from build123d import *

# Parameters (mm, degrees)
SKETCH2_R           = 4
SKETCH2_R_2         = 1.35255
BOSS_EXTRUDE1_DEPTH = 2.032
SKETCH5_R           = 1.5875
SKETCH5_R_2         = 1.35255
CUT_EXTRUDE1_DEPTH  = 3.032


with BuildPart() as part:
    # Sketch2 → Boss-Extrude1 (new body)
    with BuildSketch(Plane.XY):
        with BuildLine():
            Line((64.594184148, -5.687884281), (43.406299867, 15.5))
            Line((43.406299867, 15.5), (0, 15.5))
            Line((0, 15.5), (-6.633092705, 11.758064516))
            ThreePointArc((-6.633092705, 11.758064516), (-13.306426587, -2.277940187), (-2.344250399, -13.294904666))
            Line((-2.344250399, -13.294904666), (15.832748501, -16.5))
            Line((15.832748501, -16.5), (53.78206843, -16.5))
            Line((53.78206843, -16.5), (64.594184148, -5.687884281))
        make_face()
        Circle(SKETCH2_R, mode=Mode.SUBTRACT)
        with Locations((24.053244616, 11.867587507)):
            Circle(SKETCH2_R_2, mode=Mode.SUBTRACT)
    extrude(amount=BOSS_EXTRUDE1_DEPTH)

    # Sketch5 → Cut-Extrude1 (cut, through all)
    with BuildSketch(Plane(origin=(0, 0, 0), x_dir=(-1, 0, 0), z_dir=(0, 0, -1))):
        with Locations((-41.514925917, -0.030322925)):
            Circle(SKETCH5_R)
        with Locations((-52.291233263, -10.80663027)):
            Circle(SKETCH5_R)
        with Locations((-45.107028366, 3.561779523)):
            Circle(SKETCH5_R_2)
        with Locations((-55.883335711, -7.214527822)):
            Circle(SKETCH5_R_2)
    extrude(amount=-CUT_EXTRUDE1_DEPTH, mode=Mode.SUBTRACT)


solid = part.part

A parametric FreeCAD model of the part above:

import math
import FreeCAD as App
import Part
import Sketcher
from FreeCAD import Vector
Q = App.Units.Quantity

doc = App.newDocument("Part")
params = doc.addObject("Spreadsheet::Sheet", "Params")
for row, (alias, value) in enumerate([
    ("sketch1_diameter", "8 mm"),
    ("sketch1_radius", "13.5 mm"),
    ("pad1_length", "2.032 mm"),
], start=1):
    params.set(f"A{row}", alias)
    params.set(f"B{row}", "=" + value)
    params.setAlias(f"B{row}", alias)

body = doc.addObject("PartDesign::Body", "Body")

sketch1 = doc.addObject("Sketcher::SketchObject", "Sketch")
body.addObject(sketch1)
sketch1.AttachmentSupport = (doc.XY_Plane, [""])
sketch1.MapMode = "FlatFace"
sketch1.addGeometry([
    Part.LineSegment(Vector(64.6, -5.7, 0), Vector(43.4, 15.5, 0)),
    Part.LineSegment(Vector(43.4, 15.5, 0), Vector(0, 15.5, 0)),
    Part.LineSegment(Vector(0, 15.5, 0), Vector(-6.6, 11.8, 0)),
    Part.ArcOfCircle(Part.Circle(Vector(0, 0, 0), Vector(0, 0, 1), 13.5), math.radians(119), math.radians(260)),
    Part.LineSegment(Vector(-2.3, -13.3, 0), Vector(15.8, -16.5, 0)),
    Part.LineSegment(Vector(15.8, -16.5, 0), Vector(53.8, -16.5, 0)),
    Part.LineSegment(Vector(53.8, -16.5, 0), Vector(64.6, -5.7, 0)),
    Part.Circle(Vector(0, 0, 0), Vector(0, 0, 1), 4),
    Part.Circle(Vector(24.1, 11.9, 0), Vector(0, 0, 1), 1.4),
], False)
sketch1.addConstraint([
    Sketcher.Constraint("Coincident", 0, 2, 1, 1),
    Sketcher.Constraint("Coincident", 1, 2, 2, 1),
    Sketcher.Constraint("Tangent", 2, 2, 3, 1),
    Sketcher.Constraint("Tangent", 3, 2, 4, 1),
    Sketcher.Constraint("Coincident", 4, 2, 5, 1),
    Sketcher.Constraint("Coincident", 5, 2, 6, 1),
    Sketcher.Constraint("Coincident", 6, 2, 0, 1),
    Sketcher.Constraint("Horizontal", 1),
    Sketcher.Constraint("Horizontal", 5),
    Sketcher.Constraint("Coincident", 3, 3, -1, 1),
    Sketcher.Constraint("Coincident", 7, 3, -1, 1),
    Sketcher.Constraint("PointOnObject", 1, 2, -2),
    Sketcher.Constraint("Perpendicular", 0, 6),
    Sketcher.Constraint("Diameter", 7, Q("8 mm")),
    Sketcher.Constraint("Radius", 3, Q("13.5 mm")),
    Sketcher.Constraint("Angle", 0, Q("135 deg")),
    Sketcher.Constraint("Angle", 4, Q("-10 deg")),
    Sketcher.Constraint("DistanceY", 4, 2, 1, 2, Q("32 mm")),
    Sketcher.Constraint("Diameter", 8, Q("2.7051 mm")),
    Sketcher.Constraint("DistanceY", -1, 1, 0, 2, Q("15.5 mm")),
    Sketcher.Constraint("DistanceX", 1, 2, 1, 1, Q("43.4063 mm")),
    Sketcher.Constraint("DistanceX", 5, 1, 5, 2, Q("37.94932 mm")),
    Sketcher.Constraint("DistanceX", 8, 3, 6, 2, Q("40.54094 mm")),
    Sketcher.Constraint("DistanceY", 6, 2, 8, 3, Q("17.555472 mm")),
])
sketch1.setExpression("Constraints[13]", "Params.sketch1_diameter")
sketch1.setExpression("Constraints[14]", "Params.sketch1_radius")
pad1 = doc.addObject("PartDesign::Pad", "Pad")
body.addObject(pad1)
pad1.Profile = sketch1
pad1.setExpression("Length", "Params.pad1_length")

sketch2 = doc.addObject("Sketcher::SketchObject", "Sketch001")
body.addObject(sketch2)
sketch2.AttachmentSupport = (doc.XY_Plane, [""])
sketch2.MapMode = "FlatFace"
sketch2.addGeometry([
    Part.Circle(Vector(41.5, 0, 0), Vector(0, 0, 1), 1.6),
    Part.Circle(Vector(52.3, -10.8, 0), Vector(0, 0, 1), 1.6),
    Part.Circle(Vector(45.1, 3.6, 0), Vector(0, 0, 1), 1.4),
    Part.Circle(Vector(55.9, -7.2, 0), Vector(0, 0, 1), 1.4),
], False)
sketch2.addConstraint([
    Sketcher.Constraint("Equal", 0, 1),
    Sketcher.Constraint("Equal", 2, 3),
    Sketcher.Constraint("Diameter", 0, Q("3.175 mm")),
    Sketcher.Constraint("Diameter", 2, Q("2.7051 mm")),
    Sketcher.Constraint("DistanceY", 1, 3, -1, 1, Q("10.80663 mm")),
    Sketcher.Constraint("DistanceX", -1, 1, 2, 3, Q("45.107028 mm")),
    Sketcher.Constraint("DistanceY", -1, 1, 2, 3, Q("3.56178 mm")),
    Sketcher.Constraint("DistanceX", 0, 3, 3, 3, Q("14.36841 mm")),
    Sketcher.Constraint("DistanceX", -1, 1, 0, 3, Q("41.514926 mm")),
    Sketcher.Constraint("DistanceY", 0, 3, -1, 1, Q("0.030323 mm")),
    Sketcher.Constraint("DistanceX", -1, 1, 1, 3, Q("52.291233 mm")),
    Sketcher.Constraint("DistanceY", 3, 3, -1, 1, Q("7.214528 mm")),
])
pocket1 = doc.addObject("PartDesign::Pocket", "Pocket")
body.addObject(pocket1)
pocket1.Profile = sketch2
pocket1.Type = "ThroughAll"
pocket1.Reversed = True

doc.recompute()
